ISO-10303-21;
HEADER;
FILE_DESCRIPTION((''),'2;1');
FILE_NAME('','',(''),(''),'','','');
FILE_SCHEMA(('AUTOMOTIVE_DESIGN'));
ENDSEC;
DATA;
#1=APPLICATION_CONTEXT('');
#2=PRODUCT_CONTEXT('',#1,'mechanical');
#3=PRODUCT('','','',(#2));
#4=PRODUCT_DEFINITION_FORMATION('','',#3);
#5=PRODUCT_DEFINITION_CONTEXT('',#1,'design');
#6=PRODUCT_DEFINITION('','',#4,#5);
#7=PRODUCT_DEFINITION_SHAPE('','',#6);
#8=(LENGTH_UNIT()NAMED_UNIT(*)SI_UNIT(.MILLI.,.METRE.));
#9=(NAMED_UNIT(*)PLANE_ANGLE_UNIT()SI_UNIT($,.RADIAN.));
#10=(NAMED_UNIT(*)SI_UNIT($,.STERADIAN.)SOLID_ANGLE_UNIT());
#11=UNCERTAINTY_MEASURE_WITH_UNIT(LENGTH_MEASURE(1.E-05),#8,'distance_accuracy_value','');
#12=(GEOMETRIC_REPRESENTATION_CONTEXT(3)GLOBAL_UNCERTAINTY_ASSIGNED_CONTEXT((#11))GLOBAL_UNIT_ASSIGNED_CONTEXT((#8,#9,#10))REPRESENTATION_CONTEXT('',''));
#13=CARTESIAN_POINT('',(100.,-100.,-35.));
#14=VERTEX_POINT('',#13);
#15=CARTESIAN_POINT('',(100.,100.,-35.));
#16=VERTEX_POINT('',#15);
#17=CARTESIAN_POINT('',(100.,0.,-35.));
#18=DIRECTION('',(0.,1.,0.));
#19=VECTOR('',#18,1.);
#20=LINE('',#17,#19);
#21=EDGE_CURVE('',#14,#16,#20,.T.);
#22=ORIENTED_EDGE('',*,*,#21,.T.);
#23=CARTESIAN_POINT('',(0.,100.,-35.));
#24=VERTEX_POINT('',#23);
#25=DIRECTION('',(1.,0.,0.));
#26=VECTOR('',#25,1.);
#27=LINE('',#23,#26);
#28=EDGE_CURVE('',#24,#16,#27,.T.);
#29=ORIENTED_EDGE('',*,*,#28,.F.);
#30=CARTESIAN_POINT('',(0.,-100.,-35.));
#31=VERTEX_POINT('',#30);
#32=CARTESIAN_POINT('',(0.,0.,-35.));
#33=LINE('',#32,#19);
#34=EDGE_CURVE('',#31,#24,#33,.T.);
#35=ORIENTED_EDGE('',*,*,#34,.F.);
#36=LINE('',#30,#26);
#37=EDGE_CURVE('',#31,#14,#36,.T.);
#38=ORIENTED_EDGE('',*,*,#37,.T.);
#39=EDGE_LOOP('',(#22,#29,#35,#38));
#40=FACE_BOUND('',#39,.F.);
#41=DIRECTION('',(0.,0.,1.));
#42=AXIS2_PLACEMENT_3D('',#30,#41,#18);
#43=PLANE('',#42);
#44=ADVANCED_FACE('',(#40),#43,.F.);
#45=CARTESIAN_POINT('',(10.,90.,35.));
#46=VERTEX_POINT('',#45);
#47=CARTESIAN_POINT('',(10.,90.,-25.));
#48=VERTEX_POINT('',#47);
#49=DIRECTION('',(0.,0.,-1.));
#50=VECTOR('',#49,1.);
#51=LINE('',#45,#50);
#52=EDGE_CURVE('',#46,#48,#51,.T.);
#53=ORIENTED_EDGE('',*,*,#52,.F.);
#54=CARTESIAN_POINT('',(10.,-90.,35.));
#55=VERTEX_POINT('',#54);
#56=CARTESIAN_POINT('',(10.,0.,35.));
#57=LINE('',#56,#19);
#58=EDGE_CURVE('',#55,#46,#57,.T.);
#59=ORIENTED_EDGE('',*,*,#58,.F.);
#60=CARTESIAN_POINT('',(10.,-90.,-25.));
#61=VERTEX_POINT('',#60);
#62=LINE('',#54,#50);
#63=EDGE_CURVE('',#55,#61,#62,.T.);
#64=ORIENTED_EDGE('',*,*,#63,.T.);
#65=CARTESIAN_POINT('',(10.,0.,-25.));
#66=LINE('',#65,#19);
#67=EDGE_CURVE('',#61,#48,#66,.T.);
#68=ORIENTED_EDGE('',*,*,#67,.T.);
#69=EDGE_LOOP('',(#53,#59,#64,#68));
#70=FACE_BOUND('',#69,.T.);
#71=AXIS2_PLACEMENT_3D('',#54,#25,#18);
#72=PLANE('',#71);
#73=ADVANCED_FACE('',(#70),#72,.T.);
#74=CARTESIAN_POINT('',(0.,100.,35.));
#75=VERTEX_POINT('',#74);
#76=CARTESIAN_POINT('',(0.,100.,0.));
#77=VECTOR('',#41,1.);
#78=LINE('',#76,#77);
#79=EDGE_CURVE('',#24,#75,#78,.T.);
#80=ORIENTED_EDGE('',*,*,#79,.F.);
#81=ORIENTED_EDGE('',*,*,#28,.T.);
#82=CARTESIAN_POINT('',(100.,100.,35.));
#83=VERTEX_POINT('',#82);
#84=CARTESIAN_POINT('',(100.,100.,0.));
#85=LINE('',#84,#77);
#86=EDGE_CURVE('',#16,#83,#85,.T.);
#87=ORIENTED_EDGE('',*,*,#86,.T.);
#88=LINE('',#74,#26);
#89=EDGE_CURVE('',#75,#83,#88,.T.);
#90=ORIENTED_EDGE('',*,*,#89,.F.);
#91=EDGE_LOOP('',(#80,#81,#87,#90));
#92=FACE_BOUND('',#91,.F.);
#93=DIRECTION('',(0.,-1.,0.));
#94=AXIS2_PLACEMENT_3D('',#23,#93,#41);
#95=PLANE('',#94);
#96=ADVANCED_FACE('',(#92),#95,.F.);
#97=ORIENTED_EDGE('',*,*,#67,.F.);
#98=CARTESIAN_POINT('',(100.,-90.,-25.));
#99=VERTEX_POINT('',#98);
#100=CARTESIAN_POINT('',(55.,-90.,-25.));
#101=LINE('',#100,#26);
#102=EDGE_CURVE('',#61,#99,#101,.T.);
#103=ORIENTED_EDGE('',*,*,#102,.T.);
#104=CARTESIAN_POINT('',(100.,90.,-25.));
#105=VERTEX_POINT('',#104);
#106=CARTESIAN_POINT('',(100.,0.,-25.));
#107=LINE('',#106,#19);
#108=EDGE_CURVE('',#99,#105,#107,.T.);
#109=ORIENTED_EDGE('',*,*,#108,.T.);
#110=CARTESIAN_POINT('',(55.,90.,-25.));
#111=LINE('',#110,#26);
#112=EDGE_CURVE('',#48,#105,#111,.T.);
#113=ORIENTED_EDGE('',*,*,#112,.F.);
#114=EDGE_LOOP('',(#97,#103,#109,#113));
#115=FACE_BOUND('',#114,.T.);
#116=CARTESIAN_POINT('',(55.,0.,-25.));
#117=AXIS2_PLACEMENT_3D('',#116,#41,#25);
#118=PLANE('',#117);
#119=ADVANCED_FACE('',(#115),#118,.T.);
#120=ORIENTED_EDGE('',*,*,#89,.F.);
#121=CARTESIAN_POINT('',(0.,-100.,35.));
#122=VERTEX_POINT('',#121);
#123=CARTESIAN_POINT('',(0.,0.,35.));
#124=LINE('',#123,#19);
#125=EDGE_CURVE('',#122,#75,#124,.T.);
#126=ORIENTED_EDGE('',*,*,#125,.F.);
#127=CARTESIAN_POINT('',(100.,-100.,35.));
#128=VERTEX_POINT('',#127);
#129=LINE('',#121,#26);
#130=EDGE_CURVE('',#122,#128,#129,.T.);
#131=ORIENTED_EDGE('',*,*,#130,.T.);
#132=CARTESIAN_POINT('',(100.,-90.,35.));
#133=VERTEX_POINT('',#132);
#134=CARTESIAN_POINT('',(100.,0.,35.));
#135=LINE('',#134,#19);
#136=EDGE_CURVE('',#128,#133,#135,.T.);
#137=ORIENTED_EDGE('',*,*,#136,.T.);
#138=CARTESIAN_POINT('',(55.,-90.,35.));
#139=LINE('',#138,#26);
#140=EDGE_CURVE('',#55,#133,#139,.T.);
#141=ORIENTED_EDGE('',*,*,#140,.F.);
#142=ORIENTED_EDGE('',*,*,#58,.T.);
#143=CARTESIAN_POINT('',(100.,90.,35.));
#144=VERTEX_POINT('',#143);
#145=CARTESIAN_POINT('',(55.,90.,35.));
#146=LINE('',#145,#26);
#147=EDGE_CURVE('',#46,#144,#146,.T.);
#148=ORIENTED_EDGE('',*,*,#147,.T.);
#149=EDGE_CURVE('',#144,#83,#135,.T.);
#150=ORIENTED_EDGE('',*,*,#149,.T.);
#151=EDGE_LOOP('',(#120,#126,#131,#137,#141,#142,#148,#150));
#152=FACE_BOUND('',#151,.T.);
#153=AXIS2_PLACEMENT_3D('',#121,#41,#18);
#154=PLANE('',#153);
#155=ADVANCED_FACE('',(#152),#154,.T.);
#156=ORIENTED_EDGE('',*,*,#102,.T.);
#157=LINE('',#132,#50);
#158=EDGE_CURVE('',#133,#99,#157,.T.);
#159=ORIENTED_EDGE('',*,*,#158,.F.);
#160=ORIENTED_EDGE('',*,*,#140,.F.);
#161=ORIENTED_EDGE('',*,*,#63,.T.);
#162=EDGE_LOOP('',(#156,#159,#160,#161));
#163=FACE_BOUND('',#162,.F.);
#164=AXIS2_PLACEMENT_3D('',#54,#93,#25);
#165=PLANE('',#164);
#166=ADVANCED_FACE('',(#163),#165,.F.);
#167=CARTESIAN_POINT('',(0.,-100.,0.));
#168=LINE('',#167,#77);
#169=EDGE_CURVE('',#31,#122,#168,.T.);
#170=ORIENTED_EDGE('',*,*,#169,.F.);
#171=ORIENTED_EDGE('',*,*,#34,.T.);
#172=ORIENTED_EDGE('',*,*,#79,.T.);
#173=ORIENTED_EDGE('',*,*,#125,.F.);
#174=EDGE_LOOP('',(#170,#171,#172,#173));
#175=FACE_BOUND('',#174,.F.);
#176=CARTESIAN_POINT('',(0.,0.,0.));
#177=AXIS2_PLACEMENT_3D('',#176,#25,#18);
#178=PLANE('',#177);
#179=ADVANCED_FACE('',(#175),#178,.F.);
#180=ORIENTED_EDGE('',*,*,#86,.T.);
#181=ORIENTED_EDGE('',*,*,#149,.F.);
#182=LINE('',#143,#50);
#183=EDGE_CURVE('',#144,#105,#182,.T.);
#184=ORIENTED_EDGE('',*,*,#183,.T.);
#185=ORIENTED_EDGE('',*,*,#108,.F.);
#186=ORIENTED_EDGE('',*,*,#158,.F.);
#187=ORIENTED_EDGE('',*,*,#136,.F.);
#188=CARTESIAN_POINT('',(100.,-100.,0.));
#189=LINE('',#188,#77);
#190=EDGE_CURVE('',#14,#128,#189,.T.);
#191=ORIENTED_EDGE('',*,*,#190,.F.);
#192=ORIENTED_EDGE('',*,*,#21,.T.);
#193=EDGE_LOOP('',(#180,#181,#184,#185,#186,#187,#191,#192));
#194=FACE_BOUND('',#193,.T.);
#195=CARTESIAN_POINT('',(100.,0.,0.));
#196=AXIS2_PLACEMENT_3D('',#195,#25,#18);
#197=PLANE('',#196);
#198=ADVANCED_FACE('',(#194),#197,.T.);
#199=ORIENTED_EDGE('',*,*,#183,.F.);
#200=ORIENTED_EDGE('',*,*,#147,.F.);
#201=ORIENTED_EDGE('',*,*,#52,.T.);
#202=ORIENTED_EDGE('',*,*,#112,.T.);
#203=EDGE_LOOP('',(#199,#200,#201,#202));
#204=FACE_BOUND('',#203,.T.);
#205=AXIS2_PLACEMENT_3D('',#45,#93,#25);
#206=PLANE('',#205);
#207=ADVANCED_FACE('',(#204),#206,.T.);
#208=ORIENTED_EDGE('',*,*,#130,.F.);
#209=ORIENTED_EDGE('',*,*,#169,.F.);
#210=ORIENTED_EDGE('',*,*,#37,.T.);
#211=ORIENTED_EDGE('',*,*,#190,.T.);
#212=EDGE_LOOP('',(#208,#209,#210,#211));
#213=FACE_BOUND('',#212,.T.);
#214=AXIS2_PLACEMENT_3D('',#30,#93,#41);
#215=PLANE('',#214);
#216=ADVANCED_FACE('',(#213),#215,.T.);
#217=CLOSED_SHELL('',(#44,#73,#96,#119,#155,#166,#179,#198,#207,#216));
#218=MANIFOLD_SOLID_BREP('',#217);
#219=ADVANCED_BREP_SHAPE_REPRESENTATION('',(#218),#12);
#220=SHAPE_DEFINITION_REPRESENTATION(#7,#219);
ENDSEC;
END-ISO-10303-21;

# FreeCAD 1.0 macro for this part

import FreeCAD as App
import Part
import Sketcher
from FreeCAD import Vector

doc = App.newDocument("Part")
body = doc.addObject("PartDesign::Body", "Body")

# Sketch on YZ plane
sketch1 = body.newObject("Sketcher::SketchObject", "Sketch")
sketch1.AttachmentSupport = (doc.getObject("YZ_Plane"), [""])
sketch1.MapMode = "FlatFace"
sketch1.addGeometry([
    Part.LineSegment(Vector(-100, 35, 0), Vector(-100, -35, 0)),
    Part.LineSegment(Vector(-100, -35, 0), Vector(100, -35, 0)),
    Part.LineSegment(Vector(100, -35, 0), Vector(100, 35, 0)),
    Part.LineSegment(Vector(100, 35, 0), Vector(-100, 35, 0)),
], False)
sketch1.addConstraint([
    Sketcher.Constraint("Coincident", 0, 2, 1, 1),
    Sketcher.Constraint("Coincident", 1, 2, 2, 1),
    Sketcher.Constraint("Coincident", 2, 2, 3, 1),
    Sketcher.Constraint("Coincident", 3, 2, 0, 1),
    Sketcher.Constraint("Vertical", 0),
    Sketcher.Constraint("Horizontal", 1),
    Sketcher.Constraint("Vertical", 2),
    Sketcher.Constraint("Horizontal", 3),
    Sketcher.Constraint("Symmetric", 0, 2, 2, 2, -1, 1),
    Sketcher.Constraint("DistanceX", 1, 1, 1, 2, 200.0),
    Sketcher.Constraint("DistanceY", 0, 2, 0, 1, 70.0),
])
pad1 = body.newObject("PartDesign::Pad", "Pad")
pad1.Profile = sketch1
pad1.Length = 100

# Sketch on XY plane
sketch2 = body.newObject("Sketcher::SketchObject", "Sketch001")
sketch2.AttachmentSupport = (doc.getObject("XY_Plane"), [""])
sketch2.MapMode = "FlatFace"
sketch2.AttachmentOffset = App.Placement(Vector(0, 0, 35), App.Rotation())
sketch2.addGeometry([
    Part.LineSegment(Vector(10, 90, 0), Vector(10, -90, 0)),
    Part.LineSegment(Vector(10, -90, 0), Vector(100, -90, 0)),
    Part.LineSegment(Vector(100, -90, 0), Vector(100, 90, 0)),
    Part.LineSegment(Vector(100, 90, 0), Vector(10, 90, 0)),
], False)
sketch2.addConstraint([
    Sketcher.Constraint("Coincident", 0, 2, 1, 1),
    Sketcher.Constraint("Coincident", 1, 2, 2, 1),
    Sketcher.Constraint("Coincident", 2, 2, 3, 1),
    Sketcher.Constraint("Coincident", 3, 2, 0, 1),
    Sketcher.Constraint("Vertical", 0),
    Sketcher.Constraint("Horizontal", 1),
    Sketcher.Constraint("Vertical", 2),
    Sketcher.Constraint("Horizontal", 3),
    Sketcher.Constraint("DistanceX", 1, 1, 1, 2, 90.0),
    Sketcher.Constraint("DistanceY", 0, 2, 0, 1, 180.0),
    Sketcher.Constraint("DistanceX", -1, 1, 0, 2, 10.0),
    Sketcher.Constraint("DistanceY", 0, 2, -1, 1, 90.0),
])
pocket1 = body.newObject("PartDesign::Pocket", "Pocket")
pocket1.Profile = sketch2
pocket1.Length = 60

doc.recompute()
